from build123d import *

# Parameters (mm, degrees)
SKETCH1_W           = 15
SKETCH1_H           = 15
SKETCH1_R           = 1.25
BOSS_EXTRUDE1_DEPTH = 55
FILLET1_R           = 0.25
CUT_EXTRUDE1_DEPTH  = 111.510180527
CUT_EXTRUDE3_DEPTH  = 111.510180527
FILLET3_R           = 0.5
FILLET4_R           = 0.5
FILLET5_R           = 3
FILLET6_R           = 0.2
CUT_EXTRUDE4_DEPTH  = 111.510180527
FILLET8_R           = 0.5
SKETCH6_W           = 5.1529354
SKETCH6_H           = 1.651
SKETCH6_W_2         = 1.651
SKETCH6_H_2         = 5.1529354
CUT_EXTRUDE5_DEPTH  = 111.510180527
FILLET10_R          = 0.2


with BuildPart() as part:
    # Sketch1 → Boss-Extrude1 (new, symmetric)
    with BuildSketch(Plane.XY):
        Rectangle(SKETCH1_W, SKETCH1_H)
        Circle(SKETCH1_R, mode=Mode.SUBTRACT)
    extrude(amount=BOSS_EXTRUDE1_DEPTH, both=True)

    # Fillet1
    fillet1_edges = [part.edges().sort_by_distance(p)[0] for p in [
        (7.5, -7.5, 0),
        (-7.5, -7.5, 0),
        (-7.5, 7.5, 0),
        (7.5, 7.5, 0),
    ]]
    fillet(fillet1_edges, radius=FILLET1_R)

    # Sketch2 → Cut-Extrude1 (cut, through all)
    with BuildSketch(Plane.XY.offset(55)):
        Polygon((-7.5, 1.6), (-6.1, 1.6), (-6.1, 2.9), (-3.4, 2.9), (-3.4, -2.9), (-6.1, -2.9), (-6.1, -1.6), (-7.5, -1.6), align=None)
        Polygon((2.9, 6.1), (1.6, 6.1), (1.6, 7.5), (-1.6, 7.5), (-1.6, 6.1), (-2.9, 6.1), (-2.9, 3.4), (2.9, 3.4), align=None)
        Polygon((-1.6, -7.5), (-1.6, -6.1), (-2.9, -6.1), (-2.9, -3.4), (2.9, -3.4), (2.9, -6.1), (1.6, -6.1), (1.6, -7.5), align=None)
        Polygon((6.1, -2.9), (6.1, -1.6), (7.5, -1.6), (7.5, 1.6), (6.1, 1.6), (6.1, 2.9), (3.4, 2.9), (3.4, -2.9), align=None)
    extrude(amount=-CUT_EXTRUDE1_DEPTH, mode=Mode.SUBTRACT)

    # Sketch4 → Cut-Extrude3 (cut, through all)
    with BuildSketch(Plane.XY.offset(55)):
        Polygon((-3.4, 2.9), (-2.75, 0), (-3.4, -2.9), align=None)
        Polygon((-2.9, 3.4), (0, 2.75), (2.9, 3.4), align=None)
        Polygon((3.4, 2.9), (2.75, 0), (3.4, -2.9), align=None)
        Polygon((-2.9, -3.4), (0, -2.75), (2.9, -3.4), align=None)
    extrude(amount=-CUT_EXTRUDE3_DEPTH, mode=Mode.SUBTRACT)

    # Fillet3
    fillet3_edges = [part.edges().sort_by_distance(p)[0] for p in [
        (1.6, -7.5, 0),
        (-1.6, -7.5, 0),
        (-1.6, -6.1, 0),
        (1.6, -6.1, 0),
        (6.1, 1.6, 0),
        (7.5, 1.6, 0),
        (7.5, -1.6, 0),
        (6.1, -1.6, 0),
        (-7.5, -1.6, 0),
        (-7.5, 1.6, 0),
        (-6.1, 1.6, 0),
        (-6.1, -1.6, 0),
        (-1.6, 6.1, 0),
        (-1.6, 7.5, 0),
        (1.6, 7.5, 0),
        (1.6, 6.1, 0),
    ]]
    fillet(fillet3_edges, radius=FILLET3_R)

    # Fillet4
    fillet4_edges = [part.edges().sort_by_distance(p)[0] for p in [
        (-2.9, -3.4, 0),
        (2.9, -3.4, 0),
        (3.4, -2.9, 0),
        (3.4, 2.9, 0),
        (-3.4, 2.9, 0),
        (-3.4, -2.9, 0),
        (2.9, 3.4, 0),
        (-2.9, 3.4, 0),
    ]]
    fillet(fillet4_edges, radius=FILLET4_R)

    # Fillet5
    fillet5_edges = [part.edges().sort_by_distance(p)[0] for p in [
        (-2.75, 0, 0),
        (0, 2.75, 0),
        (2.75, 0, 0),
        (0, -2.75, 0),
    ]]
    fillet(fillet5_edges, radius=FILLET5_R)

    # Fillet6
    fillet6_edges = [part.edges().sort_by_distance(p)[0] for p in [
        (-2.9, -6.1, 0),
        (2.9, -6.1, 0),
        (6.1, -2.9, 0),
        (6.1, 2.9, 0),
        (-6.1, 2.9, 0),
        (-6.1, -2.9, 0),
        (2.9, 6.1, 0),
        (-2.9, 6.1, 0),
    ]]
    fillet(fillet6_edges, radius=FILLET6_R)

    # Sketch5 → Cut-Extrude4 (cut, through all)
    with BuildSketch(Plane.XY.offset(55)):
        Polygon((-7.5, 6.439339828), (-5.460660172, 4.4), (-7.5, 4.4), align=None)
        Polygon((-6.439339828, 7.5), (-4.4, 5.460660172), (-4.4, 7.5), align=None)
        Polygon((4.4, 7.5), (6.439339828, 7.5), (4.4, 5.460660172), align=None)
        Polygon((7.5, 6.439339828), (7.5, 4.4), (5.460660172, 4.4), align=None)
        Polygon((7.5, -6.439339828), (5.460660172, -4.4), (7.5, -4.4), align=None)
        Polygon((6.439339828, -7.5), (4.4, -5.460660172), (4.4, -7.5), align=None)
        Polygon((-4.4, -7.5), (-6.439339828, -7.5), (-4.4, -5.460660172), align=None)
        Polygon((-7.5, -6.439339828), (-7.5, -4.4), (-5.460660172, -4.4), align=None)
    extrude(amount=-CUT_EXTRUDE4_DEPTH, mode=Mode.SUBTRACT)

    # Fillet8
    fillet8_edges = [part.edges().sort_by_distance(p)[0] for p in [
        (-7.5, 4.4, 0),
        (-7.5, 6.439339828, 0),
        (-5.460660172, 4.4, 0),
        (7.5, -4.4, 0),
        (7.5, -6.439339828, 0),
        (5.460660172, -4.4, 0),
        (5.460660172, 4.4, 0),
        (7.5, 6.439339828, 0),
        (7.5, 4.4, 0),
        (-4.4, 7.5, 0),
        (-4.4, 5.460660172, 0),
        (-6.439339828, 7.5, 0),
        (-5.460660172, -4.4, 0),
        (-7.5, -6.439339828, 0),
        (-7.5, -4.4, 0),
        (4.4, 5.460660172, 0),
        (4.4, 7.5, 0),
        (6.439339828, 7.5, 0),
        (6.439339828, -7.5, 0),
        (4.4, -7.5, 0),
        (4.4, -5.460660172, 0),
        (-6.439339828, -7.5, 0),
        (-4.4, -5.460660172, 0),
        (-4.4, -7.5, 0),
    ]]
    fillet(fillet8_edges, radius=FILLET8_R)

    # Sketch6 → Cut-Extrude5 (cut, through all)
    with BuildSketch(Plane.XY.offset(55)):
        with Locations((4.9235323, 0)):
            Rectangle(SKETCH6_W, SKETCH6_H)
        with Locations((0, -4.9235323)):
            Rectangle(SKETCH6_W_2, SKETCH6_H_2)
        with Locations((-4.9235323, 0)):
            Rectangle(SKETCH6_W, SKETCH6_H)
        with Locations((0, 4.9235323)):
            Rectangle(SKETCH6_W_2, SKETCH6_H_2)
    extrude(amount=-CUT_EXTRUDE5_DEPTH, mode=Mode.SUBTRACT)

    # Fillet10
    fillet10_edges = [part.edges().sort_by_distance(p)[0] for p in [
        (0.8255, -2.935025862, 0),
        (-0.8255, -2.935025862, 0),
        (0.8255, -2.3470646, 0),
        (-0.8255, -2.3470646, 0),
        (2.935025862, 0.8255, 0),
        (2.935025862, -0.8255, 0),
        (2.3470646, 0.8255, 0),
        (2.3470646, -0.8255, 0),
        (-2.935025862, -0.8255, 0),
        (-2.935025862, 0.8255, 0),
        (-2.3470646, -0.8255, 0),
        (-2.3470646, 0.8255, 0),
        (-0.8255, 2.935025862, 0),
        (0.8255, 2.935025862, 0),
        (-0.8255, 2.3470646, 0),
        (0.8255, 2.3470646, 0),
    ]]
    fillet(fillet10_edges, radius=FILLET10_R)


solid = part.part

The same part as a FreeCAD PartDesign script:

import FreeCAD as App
import Part
import Sketcher


def edges_at(feature, points):
    """Names of the edges that pass closest to the given points."""
    edges = feature.Shape.Edges
    near = lambda p: min(range(len(edges)), key=lambda i: edges[i].distToShape(Part.Vertex(*p))[0])
    return sorted({f"Edge{near(p) + 1}" for p in points})

doc = App.newDocument("Part")
body = doc.addObject("PartDesign::Body", "Body")

# Sketch on XY plane
sketch1 = body.newObject("Sketcher::SketchObject", "Sketch")
sketch1.AttachmentSupport = (doc.getObject("XY_Plane"), [""])
sketch1.MapMode = "FlatFace"
sketch1.addGeometry([
    Part.LineSegment(App.Vector(-7.5, 7.5, 0), App.Vector(-7.5, -7.5, 0)),  # 0
    Part.LineSegment(App.Vector(-7.5, -7.5, 0), App.Vector(7.5, -7.5, 0)),  # 1
    Part.LineSegment(App.Vector(7.5, -7.5, 0), App.Vector(7.5, 7.5, 0)),  # 2
    Part.LineSegment(App.Vector(7.5, 7.5, 0), App.Vector(-7.5, 7.5, 0)),  # 3
    Part.Circle(App.Vector(0, 0, 0), App.Vector(0, 0, 1), 1.2),  # 4
], False)
sketch1.addConstraint([
    Sketcher.Constraint("Coincident", 0, 2, 1, 1),
    Sketcher.Constraint("Coincident", 1, 2, 2, 1),
    Sketcher.Constraint("Coincident", 2, 2, 3, 1),
    Sketcher.Constraint("Coincident", 3, 2, 0, 1),
    Sketcher.Constraint("Vertical", 0),
    Sketcher.Constraint("Horizontal", 1),
    Sketcher.Constraint("Vertical", 2),
    Sketcher.Constraint("Horizontal", 3),
    Sketcher.Constraint("Coincident", 4, 3, -1, 1),
    Sketcher.Constraint("Symmetric", 0, 2, 2, 2, -1, 1),
    Sketcher.Constraint("Equal", 3, 0),
    Sketcher.Constraint("Diameter", 4, 2.5),
    Sketcher.Constraint("DistanceX", 1, 1, 1, 2, 15.0),
])
pad1 = body.newObject("PartDesign::Pad", "Pad")
pad1.Profile = sketch1
pad1.Length = 110
pad1.Midplane = True
doc.recompute()

fillet = body.newObject("PartDesign::Fillet", "Fillet")
fillet.Base = (pad1, edges_at(pad1, [
    (7.5, -7.5, 0),
    (-7.5, -7.5, 0),
    (-7.5, 7.5, 0),
    (7.5, 7.5, 0),
]))
fillet.Radius = 0.25

# Sketch on XY plane
sketch2 = body.newObject("Sketcher::SketchObject", "Sketch001")
sketch2.AttachmentSupport = (doc.getObject("XY_Plane"), [""])
sketch2.MapMode = "FlatFace"
sketch2.AttachmentOffset = App.Placement(App.Vector(0, 0, 55), App.Rotation())
sketch2.addGeometry([
    Part.LineSegment(App.Vector(-6.1, 1.6, 0), App.Vector(-7.5, 1.6, 0)),  # 0
    Part.LineSegment(App.Vector(-7.5, 1.6, 0), App.Vector(-7.5, -1.6, 0)),  # 1
    Part.LineSegment(App.Vector(-7.5, -1.6, 0), App.Vector(-6.1, -1.6, 0)),  # 2
    Part.LineSegment(App.Vector(-6.1, -1.6, 0), App.Vector(-6.1, -2.9, 0)),  # 3
    Part.LineSegment(App.Vector(-6.1, -2.9, 0), App.Vector(-3.4, -2.9, 0)),  # 4
    Part.LineSegment(App.Vector(-3.4, -2.9, 0), App.Vector(-3.4, 2.9, 0)),  # 5
    Part.LineSegment(App.Vector(-3.4, 2.9, 0), App.Vector(-6.1, 2.9, 0)),  # 6
    Part.LineSegment(App.Vector(-6.1, 2.9, 0), App.Vector(-6.1, 1.6, 0)),  # 7
    Part.LineSegment(App.Vector(2.9, 6.1, 0), App.Vector(1.6, 6.1, 0)),  # 8
    Part.LineSegment(App.Vector(1.6, 6.1, 0), App.Vector(1.6, 7.5, 0)),  # 9
    Part.LineSegment(App.Vector(1.6, 7.5, 0), App.Vector(-1.6, 7.5, 0)),  # 10
    Part.LineSegment(App.Vector(-1.6, 7.5, 0), App.Vector(-1.6, 6.1, 0)),  # 11
    Part.LineSegment(App.Vector(-1.6, 6.1, 0), App.Vector(-2.9, 6.1, 0)),  # 12
    Part.LineSegment(App.Vector(-2.9, 6.1, 0), App.Vector(-2.9, 3.4, 0)),  # 13
    Part.LineSegment(App.Vector(-2.9, 3.4, 0), App.Vector(2.9, 3.4, 0)),  # 14
    Part.LineSegment(App.Vector(2.9, 3.4, 0), App.Vector(2.9, 6.1, 0)),  # 15
    Part.LineSegment(App.Vector(-1.6, -6.1, 0), App.Vector(-1.6, -7.5, 0)),  # 16
    Part.LineSegment(App.Vector(-1.6, -7.5, 0), App.Vector(1.6, -7.5, 0)),  # 17
    Part.LineSegment(App.Vector(1.6, -7.5, 0), App.Vector(1.6, -6.1, 0)),  # 18
    Part.LineSegment(App.Vector(1.6, -6.1, 0), App.Vector(2.9, -6.1, 0)),  # 19
    Part.LineSegment(App.Vector(2.9, -6.1, 0), App.Vector(2.9, -3.4, 0)),  # 20
    Part.LineSegment(App.Vector(2.9, -3.4, 0), App.Vector(-2.9, -3.4, 0)),  # 21
    Part.LineSegment(App.Vector(-2.9, -3.4, 0), App.Vector(-2.9, -6.1, 0)),  # 22
    Part.LineSegment(App.Vector(-2.9, -6.1, 0), App.Vector(-1.6, -6.1, 0)),  # 23
    Part.LineSegment(App.Vector(6.1, -2.9, 0), App.Vector(6.1, -1.6, 0)),  # 24
    Part.LineSegment(App.Vector(6.1, -1.6, 0), App.Vector(7.5, -1.6, 0)),  # 25
    Part.LineSegment(App.Vector(7.5, -1.6, 0), App.Vector(7.5, 1.6, 0)),  # 26
    Part.LineSegment(App.Vector(7.5, 1.6, 0), App.Vector(6.1, 1.6, 0)),  # 27
    Part.LineSegment(App.Vector(6.1, 1.6, 0), App.Vector(6.1, 2.9, 0)),  # 28
    Part.LineSegment(App.Vector(6.1, 2.9, 0), App.Vector(3.4, 2.9, 0)),  # 29
    Part.LineSegment(App.Vector(3.4, 2.9, 0), App.Vector(3.4, -2.9, 0)),  # 30
    Part.LineSegment(App.Vector(3.4, -2.9, 0), App.Vector(6.1, -2.9, 0)),  # 31
], False)
sketch2.addConstraint([
    Sketcher.Constraint("Coincident", 0, 2, 1, 1),
    Sketcher.Constraint("Coincident", 1, 2, 2, 1),
    Sketcher.Constraint("Coincident", 2, 2, 3, 1),
    Sketcher.Constraint("Coincident", 3, 2, 4, 1),
    Sketcher.Constraint("Coincident", 4, 2, 5, 1),
    Sketcher.Constraint("Coincident", 5, 2, 6, 1),
    Sketcher.Constraint("Coincident", 6, 2, 7, 1),
    Sketcher.Constraint("Coincident", 7, 2, 0, 1),
    Sketcher.Constraint("Coincident", 8, 2, 9, 1),
    Sketcher.Constraint("Coincident", 9, 2, 10, 1),
    Sketcher.Constraint("Coincident", 10, 2, 11, 1),
    Sketcher.Constraint("Coincident", 11, 2, 12, 1),
    Sketcher.Constraint("Coincident", 12, 2, 13, 1),
    Sketcher.Constraint("Coincident", 13, 2, 14, 1),
    Sketcher.Constraint("Coincident", 14, 2, 15, 1),
    Sketcher.Constraint("Coincident", 15, 2, 8, 1),
    Sketcher.Constraint("Coincident", 16, 2, 17, 1),
    Sketcher.Constraint("Coincident", 17, 2, 18, 1),
    Sketcher.Constraint("Coincident", 18, 2, 19, 1),
    Sketcher.Constraint("Coincident", 19, 2, 20, 1),
    Sketcher.Constraint("Coincident", 20, 2, 21, 1),
    Sketcher.Constraint("Coincident", 21, 2, 22, 1),
    Sketcher.Constraint("Coincident", 22, 2, 23, 1),
    Sketcher.Constraint("Coincident", 23, 2, 16, 1),
    Sketcher.Constraint("Coincident", 24, 2, 25, 1),
    Sketcher.Constraint("Coincident", 25, 2, 26, 1),
    Sketcher.Constraint("Coincident", 26, 2, 27, 1),
    Sketcher.Constraint("Coincident", 27, 2, 28, 1),
    Sketcher.Constraint("Coincident", 28, 2, 29, 1),
    Sketcher.Constraint("Coincident", 29, 2, 30, 1),
    Sketcher.Constraint("Coincident", 30, 2, 31, 1),
    Sketcher.Constraint("Coincident", 31, 2, 24, 1),
    Sketcher.Constraint("Horizontal", 0),
    Sketcher.Constraint("Vertical", 1),
    Sketcher.Constraint("Horizontal", 2),
    Sketcher.Constraint("Vertical", 3),
    Sketcher.Constraint("Horizontal", 4),
    Sketcher.Constraint("Vertical", 5),
    Sketcher.Constraint("Horizontal", 6),
    Sketcher.Constraint("Vertical", 7),
    Sketcher.Constraint("Horizontal", 8),
    Sketcher.Constraint("Vertical", 9),
    Sketcher.Constraint("Horizontal", 10),
    Sketcher.Constraint("Vertical", 11),
    Sketcher.Constraint("Horizontal", 12),
    Sketcher.Constraint("Vertical", 13),
    Sketcher.Constraint("Horizontal", 14),
    Sketcher.Constraint("Vertical", 15),
    Sketcher.Constraint("Vertical", 16),
    Sketcher.Constraint("Horizontal", 17),
    Sketcher.Constraint("Vertical", 18),
    Sketcher.Constraint("Horizontal", 19),
    Sketcher.Constraint("Vertical", 20),
    Sketcher.Constraint("Horizontal", 21),
    Sketcher.Constraint("Vertical", 22),
    Sketcher.Constraint("Horizontal", 23),
    Sketcher.Constraint("Vertical", 24),
    Sketcher.Constraint("Horizontal", 25),
    Sketcher.Constraint("Vertical", 26),
    Sketcher.Constraint("Horizontal", 27),
    Sketcher.Constraint("Vertical", 28),
    Sketcher.Constraint("Horizontal", 29),
    Sketcher.Constraint("Vertical", 30),
    Sketcher.Constraint("Horizontal", 31),
    Sketcher.Constraint("Symmetric", 9, 2, 16, 2, -1, 1),
    Sketcher.Constraint("Symmetric", 11, 2, 18, 2, -1, 1),
    Sketcher.Constraint("Symmetric", 13, 2, 20, 2, -1, 1),
    Sketcher.Constraint("Symmetric", 15, 2, 22, 2, -1, 1),
    Sketcher.Constraint("Symmetric", 7, 2, 24, 2, -1, 1),
    Sketcher.Constraint("Symmetric", 1, 2, 26, 2, -1, 1),
    Sketcher.Constraint("Symmetric", 3, 2, 28, 2, -1, 1),
    Sketcher.Constraint("Symmetric", 5, 2, 30, 2, -1, 1),
    Sketcher.Constraint("Symmetric", 8, 2, 11, 2, -2),
    Sketcher.Constraint("Symmetric", 2, 2, 24, 2, -2),
    Sketcher.Constraint("Horizontal", 6, 2, 28, 2),
    Sketcher.Constraint("Vertical", 15, 2, 19, 2),
    Sketcher.Constraint("Equal", 17, 1),
    Sketcher.Constraint("Equal", 23, 3),
    Sketcher.Constraint("Equal", 27, 9),
    Sketcher.Constraint("Equal", 31, 13),
    Sketcher.Constraint("DistanceX", 0, 2, 0, 1, 1.4),
    Sketcher.Constraint("DistanceX", 4, 1, 4, 2, 2.7),
    Sketcher.Constraint("DistanceX", 8, 2, 8, 1, 1.3),
    Sketcher.Constraint("DistanceX", 10, 2, 10, 1, 3.2),
    Sketcher.Constraint("DistanceX", 5, 2, 8, 2, 5.0),
    Sketcher.Constraint("DistanceY", 4, 2, 8, 2, 9.0),
])
pocket1 = body.newObject("PartDesign::Pocket", "Pocket")
pocket1.Profile = sketch2
pocket1.Type = "ThroughAll"

# Sketch on XY plane
sketch3 = body.newObject("Sketcher::SketchObject", "Sketch002")
sketch3.AttachmentSupport = (doc.getObject("XY_Plane"), [""])
sketch3.MapMode = "FlatFace"
sketch3.AttachmentOffset = App.Placement(App.Vector(0, 0, 55), App.Rotation())
sketch3.addGeometry([
    Part.LineSegment(App.Vector(-2.8, 0, 0), App.Vector(-3.4, 2.9, 0)),  # 0
    Part.LineSegment(App.Vector(-3.4, 2.9, 0), App.Vector(-3.4, -2.9, 0)),  # 1
    Part.LineSegment(App.Vector(-3.4, -2.9, 0), App.Vector(-2.8, 0, 0)),  # 2
    Part.LineSegment(App.Vector(-2.9, 3.4, 0), App.Vector(0, 2.8, 0)),  # 3
    Part.LineSegment(App.Vector(0, 2.8, 0), App.Vector(2.9, 3.4, 0)),  # 4
    Part.LineSegment(App.Vector(2.9, 3.4, 0), App.Vector(-2.9, 3.4, 0)),  # 5
    Part.LineSegment(App.Vector(3.4, 2.9, 0), App.Vector(2.8, 0, 0)),  # 6
    Part.LineSegment(App.Vector(2.8, 0, 0), App.Vector(3.4, -2.9, 0)),  # 7
    Part.LineSegment(App.Vector(3.4, -2.9, 0), App.Vector(3.4, 2.9, 0)),  # 8
    Part.LineSegment(App.Vector(0, -2.8, 0), App.Vector(-2.9, -3.4, 0)),  # 9
    Part.LineSegment(App.Vector(-2.9, -3.4, 0), App.Vector(2.9, -3.4, 0)),  # 10
    Part.LineSegment(App.Vector(2.9, -3.4, 0), App.Vector(0, -2.8, 0)),  # 11
], False)
sketch3.addConstraint([
    Sketcher.Constraint("Coincident", 0, 2, 1, 1),
    Sketcher.Constraint("Coincident", 1, 2, 2, 1),
    Sketcher.Constraint("Coincident", 2, 2, 0, 1),
    Sketcher.Constraint("Coincident", 3, 2, 4, 1),
    Sketcher.Constraint("Coincident", 4, 2, 5, 1),
    Sketcher.Constraint("Coincident", 5, 2, 3, 1),
    Sketcher.Constraint("Coincident", 6, 2, 7, 1),
    Sketcher.Constraint("Coincident", 7, 2, 8, 1),
    Sketcher.Constraint("Coincident", 8, 2, 6, 1),
    Sketcher.Constraint("Coincident", 9, 2, 10, 1),
    Sketcher.Constraint("Coincident", 10, 2, 11, 1),
    Sketcher.Constraint("Coincident", 11, 2, 9, 1),
    Sketcher.Constraint("Vertical", 1),
    Sketcher.Constraint("Horizontal", 5),
    Sketcher.Constraint("Vertical", 8),
    Sketcher.Constraint("Horizontal", 10),
    Sketcher.Constraint("Symmetric", 2, 2, 6, 2, -1, 1),
    Sketcher.Constraint("Symmetric", 0, 2, 7, 2, -1, 1),
    Sketcher.Constraint("Symmetric", 4, 2, 9, 2, -1, 1),
    Sketcher.Constraint("Symmetric", 3, 2, 11, 2, -1, 1),
    Sketcher.Constraint("PointOnObject", 2, 2, -1),
    Sketcher.Constraint("PointOnObject", 3, 2, -2),
    Sketcher.Constraint("Perpendicular", 2, 3),
    Sketcher.Constraint("Perpendicular", 0, 4),
    Sketcher.Constraint("Perpendicular", 3, 6),
    Sketcher.Constraint("Perpendicular", 6, 11),
    Sketcher.Constraint("Horizontal", 1, 2, 7, 2),
    Sketcher.Constraint("Equal", 10, 1),
    Sketcher.Constraint("DistanceX", 5, 2, 5, 1, 5.8),
    Sketcher.Constraint("DistanceX", 0, 2, -1, 1, 3.4),
    Sketcher.Constraint("DistanceY", -1, 1, 4, 2, 3.4),
    Sketcher.Constraint("DistanceX", 2, 2, 6, 2, 5.5),
])
pocket2 = body.newObject("PartDesign::Pocket", "Pocket001")
pocket2.Profile = sketch3
pocket2.Type = "ThroughAll"
doc.recompute()

fillet2 = body.newObject("PartDesign::Fillet", "Fillet001")
fillet2.Base = (pocket2, edges_at(pocket2, [
    (1.6, -7.5, 0),
    (-1.6, -7.5, 0),
    (-1.6, -6.1, 0),
    (1.6, -6.1, 0),
    (6.1, 1.6, 0),
    (7.5, 1.6, 0),
    (7.5, -1.6, 0),
    (6.1, -1.6, 0),
    (-7.5, -1.6, 0),
    (-7.5, 1.6, 0),
    (-6.1, 1.6, 0),
    (-6.1, -1.6, 0),
    (-1.6, 6.1, 0),
    (-1.6, 7.5, 0),
    (1.6, 7.5, 0),
    (1.6, 6.1, 0),
]))
fillet2.Radius = 0.5
doc.recompute()

fillet3 = body.newObject("PartDesign::Fillet", "Fillet002")
fillet3.Base = (fillet2, edges_at(fillet2, [
    (-2.9, -3.4, 0),
    (2.9, -3.4, 0),
    (3.4, -2.9, 0),
    (3.4, 2.9, 0),
    (-3.4, 2.9, 0),
    (-3.4, -2.9, 0),
    (2.9, 3.4, 0),
    (-2.9, 3.4, 0),
]))
fillet3.Radius = 0.5
doc.recompute()

fillet4 = body.newObject("PartDesign::Fillet", "Fillet003")
fillet4.Base = (fillet3, edges_at(fillet3, [
    (-2.75, 0, 0),
    (0, 2.75, 0),
    (2.75, 0, 0),
    (0, -2.75, 0),
]))
fillet4.Radius = 3
doc.recompute()

fillet5 = body.newObject("PartDesign::Fillet", "Fillet004")
fillet5.Base = (fillet4, edges_at(fillet4, [
    (-2.9, -6.1, 0),
    (2.9, -6.1, 0),
    (6.1, -2.9, 0),
    (6.1, 2.9, 0),
    (-6.1, 2.9, 0),
    (-6.1, -2.9, 0),
    (2.9, 6.1, 0),
    (-2.9, 6.1, 0),
]))
fillet5.Radius = 0.2

# Sketch on XY plane
sketch4 = body.newObject("Sketcher::SketchObject", "Sketch003")
sketch4.AttachmentSupport = (doc.getObject("XY_Plane"), [""])
sketch4.MapMode = "FlatFace"
sketch4.AttachmentOffset = App.Placement(App.Vector(0, 0, 55), App.Rotation())
sketch4.addGeometry([
    Part.LineSegment(App.Vector(-5.5, 4.4, 0), App.Vector(-7.5, 6.4, 0)),  # 0
    Part.LineSegment(App.Vector(-7.5, 6.4, 0), App.Vector(-7.5, 4.4, 0)),  # 1
    Part.LineSegment(App.Vector(-7.5, 4.4, 0), App.Vector(-5.5, 4.4, 0)),  # 2
    Part.LineSegment(App.Vector(-6.4, 7.5, 0), App.Vector(-4.4, 5.5, 0)),  # 3
    Part.LineSegment(App.Vector(-4.4, 5.5, 0), App.Vector(-4.4, 7.5, 0)),  # 4
    Part.LineSegment(App.Vector(-4.4, 7.5, 0), App.Vector(-6.4, 7.5, 0)),  # 5
    Part.LineSegment(App.Vector(6.4, 7.5, 0), App.Vector(4.4, 7.5, 0)),  # 6
    Part.LineSegment(App.Vector(4.4, 7.5, 0), App.Vector(4.4, 5.5, 0)),  # 7
    Part.LineSegment(App.Vector(4.4, 5.5, 0), App.Vector(6.4, 7.5, 0)),  # 8
    Part.LineSegment(App.Vector(7.5, 4.4, 0), App.Vector(7.5, 6.4, 0)),  # 9
    Part.LineSegment(App.Vector(7.5, 6.4, 0), App.Vector(5.5, 4.4, 0)),  # 10
    Part.LineSegment(App.Vector(5.5, 4.4, 0), App.Vector(7.5, 4.4, 0)),  # 11
    Part.LineSegment(App.Vector(5.5, -4.4, 0), App.Vector(7.5, -6.4, 0)),  # 12
    Part.LineSegment(App.Vector(7.5, -6.4, 0), App.Vector(7.5, -4.4, 0)),  # 13
    Part.LineSegment(App.Vector(7.5, -4.4, 0), App.Vector(5.5, -4.4, 0)),  # 14
    Part.LineSegment(App.Vector(6.4, -7.5, 0), App.Vector(4.4, -5.5, 0)),  # 15
    Part.LineSegment(App.Vector(4.4, -5.5, 0), App.Vector(4.4, -7.5, 0)),  # 16
    Part.LineSegment(App.Vector(4.4, -7.5, 0), App.Vector(6.4, -7.5, 0)),  # 17
    Part.LineSegment(App.Vector(-6.4, -7.5, 0), App.Vector(-4.4, -7.5, 0)),  # 18
    Part.LineSegment(App.Vector(-4.4, -7.5, 0), App.Vector(-4.4, -5.5, 0)),  # 19
    Part.LineSegment(App.Vector(-4.4, -5.5, 0), App.Vector(-6.4, -7.5, 0)),  # 20
    Part.LineSegment(App.Vector(-7.5, -4.4, 0), App.Vector(-7.5, -6.4, 0)),  # 21
    Part.LineSegment(App.Vector(-7.5, -6.4, 0), App.Vector(-5.5, -4.4, 0)),  # 22
    Part.LineSegment(App.Vector(-5.5, -4.4, 0), App.Vector(-7.5, -4.4, 0)),  # 23
], False)
sketch4.addConstraint([
    Sketcher.Constraint("Coincident", 0, 2, 1, 1),
    Sketcher.Constraint("Coincident", 1, 2, 2, 1),
    Sketcher.Constraint("Coincident", 2, 2, 0, 1),
    Sketcher.Constraint("Coincident", 3, 2, 4, 1),
    Sketcher.Constraint("Coincident", 4, 2, 5, 1),
    Sketcher.Constraint("Coincident", 5, 2, 3, 1),
    Sketcher.Constraint("Coincident", 6, 2, 7, 1),
    Sketcher.Constraint("Coincident", 7, 2, 8, 1),
    Sketcher.Constraint("Coincident", 8, 2, 6, 1),
    Sketcher.Constraint("Coincident", 9, 2, 10, 1),
    Sketcher.Constraint("Coincident", 10, 2, 11, 1),
    Sketcher.Constraint("Coincident", 11, 2, 9, 1),
    Sketcher.Constraint("Coincident", 12, 2, 13, 1),
    Sketcher.Constraint("Coincident", 13, 2, 14, 1),
    Sketcher.Constraint("Coincident", 14, 2, 12, 1),
    Sketcher.Constraint("Coincident", 15, 2, 16, 1),
    Sketcher.Constraint("Coincident", 16, 2, 17, 1),
    Sketcher.Constraint("Coincident", 17, 2, 15, 1),
    Sketcher.Constraint("Coincident", 18, 2, 19, 1),
    Sketcher.Constraint("Coincident", 19, 2, 20, 1),
    Sketcher.Constraint("Coincident", 20, 2, 18, 1),
    Sketcher.Constraint("Coincident", 21, 2, 22, 1),
    Sketcher.Constraint("Coincident", 22, 2, 23, 1),
    Sketcher.Constraint("Coincident", 23, 2, 21, 1),
    Sketcher.Constraint("Vertical", 1),
    Sketcher.Constraint("Horizontal", 2),
    Sketcher.Constraint("Vertical", 4),
    Sketcher.Constraint("Horizontal", 5),
    Sketcher.Constraint("Horizontal", 6),
    Sketcher.Constraint("Vertical", 7),
    Sketcher.Constraint("Vertical", 9),
    Sketcher.Constraint("Horizontal", 11),
    Sketcher.Constraint("Vertical", 13),
    Sketcher.Constraint("Horizontal", 14),
    Sketcher.Constraint("Vertical", 16),
    Sketcher.Constraint("Horizontal", 17),
    Sketcher.Constraint("Horizontal", 18),
    Sketcher.Constraint("Vertical", 19),
    Sketcher.Constraint("Vertical", 21),
    Sketcher.Constraint("Horizontal", 23),
    Sketcher.Constraint("Symmetric", 0, 2, 12, 2, -1, 1),
    Sketcher.Constraint("Symmetric", 2, 2, 14, 2, -1, 1),
    Sketcher.Constraint("Symmetric", 3, 2, 15, 2, -1, 1),
    Sketcher.Constraint("Symmetric", 5, 2, 17, 2, -1, 1),
    Sketcher.Constraint("Symmetric", 6, 2, 18, 2, -1, 1),
    Sketcher.Constraint("Symmetric", 9, 2, 21, 2, -1, 1),
    Sketcher.Constraint("Symmetric", 10, 2, 22, 2, -1, 1),
    Sketcher.Constraint("Symmetric", 4, 2, 6, 2, -2),
    Sketcher.Constraint("Symmetric", 0, 2, 9, 2, -2),
    Sketcher.Constraint("Symmetric", 2, 2, 10, 2, -2),
    Sketcher.Constraint("Parallel", 0, 3),
    Sketcher.Constraint("Perpendicular", 3, 8),
    Sketcher.Constraint("Parallel", 8, 10),
    Sketcher.Constraint("Perpendicular", 15, 20),
    Sketcher.Constraint("Horizontal", 3, 2, 7, 2),
    Sketcher.Constraint("Horizontal", 15, 2, 19, 2),
    Sketcher.Constraint("Equal", 2, 5),
    Sketcher.Constraint("DistanceX", 0, 2, -1, 1, 7.5),
    Sketcher.Constraint("DistanceY", -1, 1, 1, 2, 4.4),
    Sketcher.Constraint("DistanceX", 3, 2, -1, 1, 4.4),
    Sketcher.Constraint("DistanceY", -1, 1, 4, 2, 7.5),
    Sketcher.Constraint("DistanceX", 2, 1, 2, 2, 2.03934),
])
pocket3 = body.newObject("PartDesign::Pocket", "Pocket002")
pocket3.Profile = sketch4
pocket3.Type = "ThroughAll"
doc.recompute()

fillet6 = body.newObject("PartDesign::Fillet", "Fillet005")
fillet6.Base = (pocket3, edges_at(pocket3, [
    (-7.5, 4.4, 0),
    (-7.5, 6.439, 0),
    (-5.461, 4.4, 0),
    (7.5, -4.4, 0),
    (7.5, -6.439, 0),
    (5.461, -4.4, 0),
    (5.461, 4.4, 0),
    (7.5, 6.439, 0),
    (7.5, 4.4, 0),
    (-4.4, 7.5, 0),
    (-4.4, 5.461, 0),
    (-6.439, 7.5, 0),
    (-5.461, -4.4, 0),
    (-7.5, -6.439, 0),
    (-7.5, -4.4, 0),
    (4.4, 5.461, 0),
    (4.4, 7.5, 0),
    (6.439, 7.5, 0),
    (6.439, -7.5, 0),
    (4.4, -7.5, 0),
    (4.4, -5.461, 0),
    (-6.439, -7.5, 0),
    (-4.4, -5.461, 0),
    (-4.4, -7.5, 0),
]))
fillet6.Radius = 0.5

# Sketch on XY plane
sketch5 = body.newObject("Sketcher::SketchObject", "Sketch004")
sketch5.AttachmentSupport = (doc.getObject("XY_Plane"), [""])
sketch5.MapMode = "FlatFace"
sketch5.AttachmentOffset = App.Placement(App.Vector(0, 0, 55), App.Rotation())
sketch5.addGeometry([
    Part.LineSegment(App.Vector(2.3, 0.8, 0), App.Vector(2.3, -0.8, 0)),  # 0
    Part.LineSegment(App.Vector(2.3, -0.8, 0), App.Vector(7.5, -0.8, 0)),  # 1
    Part.LineSegment(App.Vector(7.5, -0.8, 0), App.Vector(7.5, 0.8, 0)),  # 2
    Part.LineSegment(App.Vector(7.5, 0.8, 0), App.Vector(2.3, 0.8, 0)),  # 3
    Part.LineSegment(App.Vector(-0.8, -2.3, 0), App.Vector(-0.8, -7.5, 0)),  # 4
    Part.LineSegment(App.Vector(-0.8, -7.5, 0), App.Vector(0.8, -7.5, 0)),  # 5
    Part.LineSegment(App.Vector(0.8, -7.5, 0), App.Vector(0.8, -2.3, 0)),  # 6
    Part.LineSegment(App.Vector(0.8, -2.3, 0), App.Vector(-0.8, -2.3, 0)),  # 7
    Part.LineSegment(App.Vector(-7.5, 0.8, 0), App.Vector(-7.5, -0.8, 0)),  # 8
    Part.LineSegment(App.Vector(-7.5, -0.8, 0), App.Vector(-2.3, -0.8, 0)),  # 9
    Part.LineSegment(App.Vector(-2.3, -0.8, 0), App.Vector(-2.3, 0.8, 0)),  # 10
    Part.LineSegment(App.Vector(-2.3, 0.8, 0), App.Vector(-7.5, 0.8, 0)),  # 11
    Part.LineSegment(App.Vector(-0.8, 7.5, 0), App.Vector(-0.8, 2.3, 0)),  # 12
    Part.LineSegment(App.Vector(-0.8, 2.3, 0), App.Vector(0.8, 2.3, 0)),  # 13
    Part.LineSegment(App.Vector(0.8, 2.3, 0), App.Vector(0.8, 7.5, 0)),  # 14
    Part.LineSegment(App.Vector(0.8, 7.5, 0), App.Vector(-0.8, 7.5, 0)),  # 15
], False)
sketch5.addConstraint([
    Sketcher.Constraint("Coincident", 0, 2, 1, 1),
    Sketcher.Constraint("Coincident", 1, 2, 2, 1),
    Sketcher.Constraint("Coincident", 2, 2, 3, 1),
    Sketcher.Constraint("Coincident", 3, 2, 0, 1),
    Sketcher.Constraint("Coincident", 4, 2, 5, 1),
    Sketcher.Constraint("Coincident", 5, 2, 6, 1),
    Sketcher.Constraint("Coincident", 6, 2, 7, 1),
    Sketcher.Constraint("Coincident", 7, 2, 4, 1),
    Sketcher.Constraint("Coincident", 8, 2, 9, 1),
    Sketcher.Constraint("Coincident", 9, 2, 10, 1),
    Sketcher.Constraint("Coincident", 10, 2, 11, 1),
    Sketcher.Constraint("Coincident", 11, 2, 8, 1),
    Sketcher.Constraint("Coincident", 12, 2, 13, 1),
    Sketcher.Constraint("Coincident", 13, 2, 14, 1),
    Sketcher.Constraint("Coincident", 14, 2, 15, 1),
    Sketcher.Constraint("Coincident", 15, 2, 12, 1),
    Sketcher.Constraint("Vertical", 0),
    Sketcher.Constraint("Horizontal", 1),
    Sketcher.Constraint("Vertical", 2),
    Sketcher.Constraint("Horizontal", 3),
    Sketcher.Constraint("Vertical", 4),
    Sketcher.Constraint("Horizontal", 5),
    Sketcher.Constraint("Vertical", 6),
    Sketcher.Constraint("Horizontal", 7),
    Sketcher.Constraint("Vertical", 8),
    Sketcher.Constraint("Horizontal", 9),
    Sketcher.Constraint("Vertical", 10),
    Sketcher.Constraint("Horizontal", 11),
    Sketcher.Constraint("Vertical", 12),
    Sketcher.Constraint("Horizontal", 13),
    Sketcher.Constraint("Vertical", 14),
    Sketcher.Constraint("Horizontal", 15),
    Sketcher.Constraint("Symmetric", 2, 2, 8, 2, -1, 1),
    Sketcher.Constraint("Symmetric", 0, 2, 10, 2, -1, 1),
    Sketcher.Constraint("Symmetric", 6, 2, 12, 2, -1, 1),
    Sketcher.Constraint("Symmetric", 4, 2, 14, 2, -1, 1),
    Sketcher.Constraint("Horizontal", 1, 2, 8, 2),
    Sketcher.Constraint("Vertical", 7, 2, 12, 2),
    Sketcher.Constraint("Equal", 15, 0),
    Sketcher.Constraint("Equal", 11, 4),
    Sketcher.Constraint("DistanceX", -1, 1, 1, 2, 7.5),
    Sketcher.Constraint("DistanceY", 4, 2, -1, 1, 7.5),
    Sketcher.Constraint("DistanceX", 5, 1, 5, 2, 1.651),
    Sketcher.Constraint("DistanceX", 1, 1, 1, 2, 5.152935),
])
pocket4 = body.newObject("PartDesign::Pocket", "Pocket003")
pocket4.Profile = sketch5
pocket4.Type = "ThroughAll"
doc.recompute()

fillet7 = body.newObject("PartDesign::Fillet", "Fillet006")
fillet7.Base = (pocket4, edges_at(pocket4, [
    (0.826, -2.935, 0),
    (-0.826, -2.935, 0),
    (0.826, -2.347, 0),
    (-0.826, -2.347, 0),
    (2.935, 0.826, 0),
    (2.935, -0.826, 0),
    (2.347, 0.826, 0),
    (2.347, -0.826, 0),
    (-2.935, -0.826, 0),
    (-2.935, 0.826, 0),
    (-2.347, -0.826, 0),
    (-2.347, 0.826, 0),
    (-0.826, 2.935, 0),
    (0.826, 2.935, 0),
    (-0.826, 2.347, 0),
    (0.826, 2.347, 0),
]))
fillet7.Radius = 0.2

doc.recompute()
